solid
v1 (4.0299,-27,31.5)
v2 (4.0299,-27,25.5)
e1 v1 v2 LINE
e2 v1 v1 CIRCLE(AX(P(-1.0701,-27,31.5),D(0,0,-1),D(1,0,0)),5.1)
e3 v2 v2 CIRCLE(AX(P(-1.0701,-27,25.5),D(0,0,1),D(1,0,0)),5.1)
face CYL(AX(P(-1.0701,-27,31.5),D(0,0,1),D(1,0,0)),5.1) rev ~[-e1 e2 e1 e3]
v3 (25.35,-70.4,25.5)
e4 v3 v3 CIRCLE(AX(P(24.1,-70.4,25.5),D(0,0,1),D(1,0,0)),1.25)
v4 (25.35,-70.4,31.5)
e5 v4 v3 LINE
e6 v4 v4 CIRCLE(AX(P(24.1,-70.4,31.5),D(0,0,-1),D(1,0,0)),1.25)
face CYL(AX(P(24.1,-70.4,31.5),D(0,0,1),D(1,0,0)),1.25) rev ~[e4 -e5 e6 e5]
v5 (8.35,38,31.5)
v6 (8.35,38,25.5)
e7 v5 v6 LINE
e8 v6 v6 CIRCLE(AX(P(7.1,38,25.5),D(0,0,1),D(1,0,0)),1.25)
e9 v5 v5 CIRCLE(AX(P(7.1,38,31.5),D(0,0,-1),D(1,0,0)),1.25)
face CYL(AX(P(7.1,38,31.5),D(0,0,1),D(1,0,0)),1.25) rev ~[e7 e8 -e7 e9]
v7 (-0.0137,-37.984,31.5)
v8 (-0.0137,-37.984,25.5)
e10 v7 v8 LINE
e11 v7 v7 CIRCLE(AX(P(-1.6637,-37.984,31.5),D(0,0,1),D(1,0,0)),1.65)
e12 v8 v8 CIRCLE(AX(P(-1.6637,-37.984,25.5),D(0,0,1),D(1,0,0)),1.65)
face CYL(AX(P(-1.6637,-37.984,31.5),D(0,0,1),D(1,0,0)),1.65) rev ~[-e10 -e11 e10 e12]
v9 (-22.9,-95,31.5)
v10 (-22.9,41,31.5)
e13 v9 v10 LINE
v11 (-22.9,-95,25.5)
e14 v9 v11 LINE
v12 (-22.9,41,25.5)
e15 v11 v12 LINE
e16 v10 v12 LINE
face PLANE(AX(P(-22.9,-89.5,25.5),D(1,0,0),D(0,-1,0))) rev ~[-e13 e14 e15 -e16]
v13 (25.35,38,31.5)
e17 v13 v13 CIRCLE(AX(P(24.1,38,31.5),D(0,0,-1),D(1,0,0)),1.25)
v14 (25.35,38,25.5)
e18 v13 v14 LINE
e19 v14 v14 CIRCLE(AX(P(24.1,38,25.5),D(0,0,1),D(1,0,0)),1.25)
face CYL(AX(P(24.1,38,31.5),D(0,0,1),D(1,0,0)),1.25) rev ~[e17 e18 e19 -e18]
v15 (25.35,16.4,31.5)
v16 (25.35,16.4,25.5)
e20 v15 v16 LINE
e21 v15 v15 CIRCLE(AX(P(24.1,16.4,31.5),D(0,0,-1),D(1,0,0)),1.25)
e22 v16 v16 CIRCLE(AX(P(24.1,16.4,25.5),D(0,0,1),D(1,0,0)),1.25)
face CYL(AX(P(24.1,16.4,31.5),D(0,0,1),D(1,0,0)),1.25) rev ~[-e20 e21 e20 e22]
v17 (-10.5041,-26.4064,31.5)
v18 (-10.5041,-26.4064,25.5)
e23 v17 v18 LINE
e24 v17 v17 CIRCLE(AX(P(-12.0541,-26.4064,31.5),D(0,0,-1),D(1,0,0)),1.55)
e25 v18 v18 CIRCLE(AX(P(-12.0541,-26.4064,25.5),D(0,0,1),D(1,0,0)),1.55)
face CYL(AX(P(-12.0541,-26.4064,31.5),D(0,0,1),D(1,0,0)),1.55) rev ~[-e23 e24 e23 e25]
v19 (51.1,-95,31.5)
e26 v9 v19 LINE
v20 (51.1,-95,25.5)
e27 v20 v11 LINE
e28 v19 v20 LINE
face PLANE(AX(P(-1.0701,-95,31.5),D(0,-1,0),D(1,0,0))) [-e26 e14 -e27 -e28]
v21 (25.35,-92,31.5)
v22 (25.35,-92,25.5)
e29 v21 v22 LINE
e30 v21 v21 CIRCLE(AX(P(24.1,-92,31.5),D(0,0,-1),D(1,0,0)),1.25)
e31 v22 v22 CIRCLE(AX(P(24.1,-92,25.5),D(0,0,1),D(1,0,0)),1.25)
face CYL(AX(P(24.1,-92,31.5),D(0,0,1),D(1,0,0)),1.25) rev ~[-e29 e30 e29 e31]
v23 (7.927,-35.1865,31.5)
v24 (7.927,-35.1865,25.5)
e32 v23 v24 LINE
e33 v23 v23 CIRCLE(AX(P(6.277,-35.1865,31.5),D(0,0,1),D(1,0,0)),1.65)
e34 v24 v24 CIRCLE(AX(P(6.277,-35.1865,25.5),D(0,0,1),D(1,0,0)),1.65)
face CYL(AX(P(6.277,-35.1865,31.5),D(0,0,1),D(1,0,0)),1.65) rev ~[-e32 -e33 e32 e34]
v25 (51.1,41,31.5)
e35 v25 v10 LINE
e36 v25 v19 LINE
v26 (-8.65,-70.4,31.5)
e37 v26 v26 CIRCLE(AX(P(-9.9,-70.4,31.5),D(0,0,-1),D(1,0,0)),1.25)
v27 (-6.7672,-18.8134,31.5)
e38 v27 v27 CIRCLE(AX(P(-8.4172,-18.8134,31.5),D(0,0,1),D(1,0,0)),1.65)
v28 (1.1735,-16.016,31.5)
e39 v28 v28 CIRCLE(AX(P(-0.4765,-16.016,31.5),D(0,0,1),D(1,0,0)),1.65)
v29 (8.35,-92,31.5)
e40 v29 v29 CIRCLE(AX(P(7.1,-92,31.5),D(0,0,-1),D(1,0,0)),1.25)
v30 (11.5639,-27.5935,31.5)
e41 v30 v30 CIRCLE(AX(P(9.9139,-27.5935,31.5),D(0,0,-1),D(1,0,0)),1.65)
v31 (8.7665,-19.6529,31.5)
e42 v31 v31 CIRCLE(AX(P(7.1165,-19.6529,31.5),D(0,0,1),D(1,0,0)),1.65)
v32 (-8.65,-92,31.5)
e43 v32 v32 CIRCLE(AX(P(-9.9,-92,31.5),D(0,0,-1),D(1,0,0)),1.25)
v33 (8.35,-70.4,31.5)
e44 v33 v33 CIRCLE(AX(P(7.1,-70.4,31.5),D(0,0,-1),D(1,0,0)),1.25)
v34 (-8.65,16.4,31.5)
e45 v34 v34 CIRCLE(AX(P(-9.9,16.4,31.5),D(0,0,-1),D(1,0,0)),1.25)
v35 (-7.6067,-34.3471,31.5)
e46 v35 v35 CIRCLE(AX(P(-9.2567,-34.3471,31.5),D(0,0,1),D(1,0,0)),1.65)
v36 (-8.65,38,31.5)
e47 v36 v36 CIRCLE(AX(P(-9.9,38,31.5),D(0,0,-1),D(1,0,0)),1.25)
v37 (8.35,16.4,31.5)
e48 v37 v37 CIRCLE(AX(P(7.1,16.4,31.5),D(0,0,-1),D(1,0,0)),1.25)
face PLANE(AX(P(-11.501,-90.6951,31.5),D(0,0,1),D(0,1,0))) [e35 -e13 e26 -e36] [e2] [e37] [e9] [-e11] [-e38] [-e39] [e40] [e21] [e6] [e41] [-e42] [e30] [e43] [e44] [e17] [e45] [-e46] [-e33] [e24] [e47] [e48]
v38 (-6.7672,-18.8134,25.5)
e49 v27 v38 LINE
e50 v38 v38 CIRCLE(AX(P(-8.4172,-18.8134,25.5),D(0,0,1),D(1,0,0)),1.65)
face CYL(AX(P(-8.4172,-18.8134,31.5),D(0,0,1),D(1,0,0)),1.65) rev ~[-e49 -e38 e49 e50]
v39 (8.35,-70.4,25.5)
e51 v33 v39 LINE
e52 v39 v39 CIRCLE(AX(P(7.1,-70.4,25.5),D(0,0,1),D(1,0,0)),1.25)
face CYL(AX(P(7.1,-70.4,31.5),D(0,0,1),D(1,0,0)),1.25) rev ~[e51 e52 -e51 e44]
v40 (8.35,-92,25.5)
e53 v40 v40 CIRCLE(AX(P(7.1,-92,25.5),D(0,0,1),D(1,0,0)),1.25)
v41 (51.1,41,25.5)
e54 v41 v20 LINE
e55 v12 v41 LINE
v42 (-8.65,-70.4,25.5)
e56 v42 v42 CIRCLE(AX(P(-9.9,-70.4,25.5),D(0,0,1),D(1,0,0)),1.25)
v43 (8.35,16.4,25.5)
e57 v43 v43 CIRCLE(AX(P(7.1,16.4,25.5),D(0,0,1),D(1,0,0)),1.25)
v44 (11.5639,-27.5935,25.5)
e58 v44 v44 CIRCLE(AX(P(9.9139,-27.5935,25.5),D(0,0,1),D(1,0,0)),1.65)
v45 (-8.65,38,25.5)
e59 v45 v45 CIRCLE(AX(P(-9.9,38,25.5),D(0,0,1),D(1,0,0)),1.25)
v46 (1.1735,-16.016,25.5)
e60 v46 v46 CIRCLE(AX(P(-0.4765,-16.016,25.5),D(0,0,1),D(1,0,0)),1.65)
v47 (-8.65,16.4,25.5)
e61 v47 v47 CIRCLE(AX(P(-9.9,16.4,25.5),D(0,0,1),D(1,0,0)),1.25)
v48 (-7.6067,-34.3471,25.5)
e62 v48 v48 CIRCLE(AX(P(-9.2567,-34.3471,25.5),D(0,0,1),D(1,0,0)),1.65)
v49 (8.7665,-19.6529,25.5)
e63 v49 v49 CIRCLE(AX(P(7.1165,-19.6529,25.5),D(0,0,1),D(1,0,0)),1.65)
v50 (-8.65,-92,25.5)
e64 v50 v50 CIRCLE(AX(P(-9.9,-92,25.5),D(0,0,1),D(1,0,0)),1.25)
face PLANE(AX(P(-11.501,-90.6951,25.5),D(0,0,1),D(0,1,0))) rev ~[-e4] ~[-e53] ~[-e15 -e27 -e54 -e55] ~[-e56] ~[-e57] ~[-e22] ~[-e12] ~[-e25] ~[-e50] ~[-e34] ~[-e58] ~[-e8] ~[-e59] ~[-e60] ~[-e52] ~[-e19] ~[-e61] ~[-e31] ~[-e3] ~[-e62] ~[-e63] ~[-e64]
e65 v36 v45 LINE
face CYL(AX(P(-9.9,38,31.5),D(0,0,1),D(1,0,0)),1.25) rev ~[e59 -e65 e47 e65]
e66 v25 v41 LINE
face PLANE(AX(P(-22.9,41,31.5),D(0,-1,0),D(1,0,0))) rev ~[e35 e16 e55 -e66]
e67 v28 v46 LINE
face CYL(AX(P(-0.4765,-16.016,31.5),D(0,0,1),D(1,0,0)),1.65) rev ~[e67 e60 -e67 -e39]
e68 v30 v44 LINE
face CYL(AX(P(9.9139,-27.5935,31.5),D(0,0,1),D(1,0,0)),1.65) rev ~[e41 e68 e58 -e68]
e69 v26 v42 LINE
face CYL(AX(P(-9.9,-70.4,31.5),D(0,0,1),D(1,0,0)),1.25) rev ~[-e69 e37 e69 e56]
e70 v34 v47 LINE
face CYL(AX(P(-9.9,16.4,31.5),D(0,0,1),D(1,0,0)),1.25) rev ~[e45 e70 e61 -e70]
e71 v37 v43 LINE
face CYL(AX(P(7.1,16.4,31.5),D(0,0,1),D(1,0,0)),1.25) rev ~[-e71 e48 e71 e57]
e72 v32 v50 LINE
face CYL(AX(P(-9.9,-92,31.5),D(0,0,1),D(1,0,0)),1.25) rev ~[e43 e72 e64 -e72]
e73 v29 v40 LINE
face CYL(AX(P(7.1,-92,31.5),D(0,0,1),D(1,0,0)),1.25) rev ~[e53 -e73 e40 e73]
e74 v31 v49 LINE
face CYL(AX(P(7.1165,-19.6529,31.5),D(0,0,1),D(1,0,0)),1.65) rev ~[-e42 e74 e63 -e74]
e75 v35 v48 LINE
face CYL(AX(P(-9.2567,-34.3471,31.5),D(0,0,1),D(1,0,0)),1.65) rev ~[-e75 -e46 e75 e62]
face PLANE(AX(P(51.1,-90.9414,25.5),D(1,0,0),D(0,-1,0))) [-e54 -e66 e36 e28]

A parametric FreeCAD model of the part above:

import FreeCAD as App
import Part
import Sketcher

V = App.Vector

doc = App.newDocument("Part")
params = doc.addObject("Spreadsheet::Sheet", "Params")
for row, (alias, value) in enumerate([
    ("sketch1_width", "74 mm"),
    ("sketch1_height", "176 mm"),
    ("pad1_length", "6 mm"),
    ("sketch2_diameter", "3.1 mm"),
    ("sketch2_diameter2", "3.3 mm"),
    ("sketch2_diameter3", "10.2 mm"),
    ("pocket1_length", "10 mm"),
    ("sketch3_height", "20 mm"),
    ("sketch3_width", "74 mm"),
    ("pocket2_length", "6 mm"),
    ("sketch4_diameter", "2.5 mm"),
    ("pocket3_length", "20 mm"),
], start=1):
    params.set(f"A{row}", alias)
    params.set(f"B{row}", "=" + value)
    params.setAlias(f"B{row}", alias)

body = doc.addObject("PartDesign::Body", "Body")

# Sketch on XY plane
sketch1 = body.newObject("Sketcher::SketchObject", "Sketch")
sketch1.AttachmentSupport = (doc.getObject("XY_Plane"), [""])
sketch1.MapMode = "FlatFace"
sketch1.AttachmentOffset = App.Placement(V(0, 0, 25.5), App.Rotation())
sketch1.addGeometry([
    Part.LineSegment(V(-22.9, -115, 0), V(51.1, -115, 0)),
    Part.LineSegment(V(51.1, -115, 0), V(51.1, 61, 0)),
    Part.LineSegment(V(51.1, 61, 0), V(-22.9, 61, 0)),
    Part.LineSegment(V(-22.9, 61, 0), V(-22.9, -115, 0)),
], False)
sketch1.addConstraint([
    Sketcher.Constraint("Coincident", 0, 2, 1, 1),
    Sketcher.Constraint("Coincident", 1, 2, 2, 1),
    Sketcher.Constraint("Coincident", 2, 2, 3, 1),
    Sketcher.Constraint("Coincident", 3, 2, 0, 1),
    Sketcher.Constraint("Horizontal", 0),
    Sketcher.Constraint("Vertical", 1),
    Sketcher.Constraint("Horizontal", 2),
    Sketcher.Constraint("Vertical", 3),
    Sketcher.Constraint("DistanceX", 0, 1, 0, 2, 74.0),
    Sketcher.Constraint("DistanceY", 1, 1, 1, 2, 176.0),
    Sketcher.Constraint("DistanceY", 0, 2, -1, 1, 115.0),
    Sketcher.Constraint("DistanceX", -1, 1, 0, 2, 51.1),
])
sketch1.setExpression("Constraints[8]", "Params.sketch1_width")
sketch1.setExpression("Constraints[9]", "Params.sketch1_height")
pad1 = body.newObject("PartDesign::Pad", "Pad")
pad1.Profile = sketch1
pad1.setExpression("Length", "Params.pad1_length")

# Sketch on XY plane
sketch2 = body.newObject("Sketcher::SketchObject", "Sketch001")
sketch2.AttachmentSupport = (doc.getObject("XY_Plane"), [""])
sketch2.MapMode = "FlatFace"
sketch2.AttachmentOffset = App.Placement(V(0, 0, 31.5), App.Rotation())
sketch2.addGeometry([
    Part.Circle(V(-12.0541, -26.4064, 0), V(0, 0, 1), 1.55),  # 0
    Part.Circle(V(9.9139, -27.5935, 0), V(0, 0, 1), 1.65),  # 1
    Part.Circle(V(-1.0701, -27, 0), V(0, 0, 1), 5.1),  # 2
    Part.Circle(V(-0.4765, -16.016, 0), V(0, 0, 1), 1.65),  # 3
    Part.Circle(V(-1.6637, -37.984, 0), V(0, 0, 1), 1.65),  # 4
    Part.Circle(V(6.277, -35.1865, 0), V(0, 0, 1), 1.65),  # 5
    Part.Circle(V(7.1165, -19.6529, 0), V(0, 0, 1), 1.65),  # 6
    Part.Circle(V(-8.4172, -18.8134, 0), V(0, 0, 1), 1.65),  # 7
    Part.Circle(V(-9.2567, -34.3471, 0), V(0, 0, 1), 1.65),  # 8
], False)
sketch2.addConstraint([
    Sketcher.Constraint("Equal", 1, 3),
    Sketcher.Constraint("Equal", 3, 4),
    Sketcher.Constraint("Equal", 4, 5),
    Sketcher.Constraint("Equal", 5, 6),
    Sketcher.Constraint("Equal", 6, 7),
    Sketcher.Constraint("Equal", 7, 8),
    Sketcher.Constraint("Diameter", 0, 3.1),
    Sketcher.Constraint("Diameter", 1, 3.3),
    Sketcher.Constraint("Diameter", 2, 10.2),
    Sketcher.Constraint("DistanceY", 2, 3, -1, 1, 27.0),
    Sketcher.Constraint("DistanceX", 2, 3, -1, 1, 1.07),
    Sketcher.Constraint("DistanceY", 5, 3, 0, 3, 8.78),
    Sketcher.Constraint("DistanceY", 1, 3, 7, 3, 8.78),
    Sketcher.Constraint("DistanceX", 0, 3, -1, 1, 12.054),
    Sketcher.Constraint("DistanceX", -1, 1, 1, 3, 9.914),
    Sketcher.Constraint("DistanceY", 3, 3, -1, 1, 16.016),
    Sketcher.Constraint("DistanceY", 4, 3, -1, 1, 37.984),
    Sketcher.Constraint("DistanceX", -1, 1, 5, 3, 6.277),
    Sketcher.Constraint("DistanceY", 6, 3, -1, 1, 19.653),
    Sketcher.Constraint("DistanceY", 8, 3, -1, 1, 34.347),
    Sketcher.Constraint("DistanceY", 1, 3, 0, 3, 1.187),
    Sketcher.Constraint("DistanceX", 3, 3, 6, 3, 7.593),
    Sketcher.Constraint("DistanceX", 0, 3, 7, 3, 3.637),
    Sketcher.Constraint("DistanceX", 8, 3, 4, 3, 7.593),
    Sketcher.Constraint("DistanceY", 0, 3, -1, 1, 26.4064),
    Sketcher.Constraint("DistanceX", 3, 3, -1, 1, 0.4765),
    Sketcher.Constraint("DistanceX", 4, 3, -1, 1, 1.6637),
])
sketch2.setExpression("Constraints[6]", "Params.sketch2_diameter")
sketch2.setExpression("Constraints[7]", "Params.sketch2_diameter2")
sketch2.setExpression("Constraints[8]", "Params.sketch2_diameter3")
pocket1 = body.newObject("PartDesign::Pocket", "Pocket")
pocket1.Profile = sketch2
pocket1.setExpression("Length", "Params.pocket1_length")

# Sketch on XY plane
sketch3 = body.newObject("Sketcher::SketchObject", "Sketch002")
sketch3.AttachmentSupport = (doc.getObject("XY_Plane"), [""])
sketch3.MapMode = "FlatFace"
sketch3.AttachmentOffset = App.Placement(V(0, 0, 31.5), App.Rotation())
sketch3.addGeometry([
    Part.LineSegment(V(-22.9, 41, 0), V(51.1, 41, 0)),  # 0
    Part.LineSegment(V(51.1, 41, 0), V(51.1, 61, 0)),  # 1
    Part.LineSegment(V(51.1, 61, 0), V(-22.9, 61, 0)),  # 2
    Part.LineSegment(V(-22.9, 61, 0), V(-22.9, 41, 0)),  # 3
    Part.LineSegment(V(51.1, -95, 0), V(-22.9, -95, 0)),  # 4
    Part.LineSegment(V(-22.9, -95, 0), V(-22.9, -115, 0)),  # 5
    Part.LineSegment(V(-22.9, -115, 0), V(51.1, -115, 0)),  # 6
    Part.LineSegment(V(51.1, -115, 0), V(51.1, -95, 0)),  # 7
], False)
sketch3.addConstraint([
    Sketcher.Constraint("Coincident", 0, 2, 1, 1),
    Sketcher.Constraint("Coincident", 1, 2, 2, 1),
    Sketcher.Constraint("Coincident", 2, 2, 3, 1),
    Sketcher.Constraint("Coincident", 3, 2, 0, 1),
    Sketcher.Constraint("Coincident", 4, 2, 5, 1),
    Sketcher.Constraint("Coincident", 5, 2, 6, 1),
    Sketcher.Constraint("Coincident", 6, 2, 7, 1),
    Sketcher.Constraint("Coincident", 7, 2, 4, 1),
    Sketcher.Constraint("Horizontal", 0),
    Sketcher.Constraint("Vertical", 1),
    Sketcher.Constraint("Horizontal", 2),
    Sketcher.Constraint("Vertical", 3),
    Sketcher.Constraint("Horizontal", 4),
    Sketcher.Constraint("Vertical", 5),
    Sketcher.Constraint("Horizontal", 6),
    Sketcher.Constraint("Vertical", 7),
    Sketcher.Constraint("Vertical", 3, 2, 4, 2),
    Sketcher.Constraint("Vertical", 1, 2, 6, 2),
    Sketcher.Constraint("Equal", 3, 5),
    Sketcher.Constraint("DistanceY", 1, 1, 1, 2, 20.0),
    Sketcher.Constraint("DistanceX", 0, 1, 0, 2, 74.0),
    Sketcher.Constraint("DistanceY", -1, 1, 0, 2, 41.0),
    Sketcher.Constraint("DistanceY", 4, 2, -1, 1, 95.0),
    Sketcher.Constraint("DistanceX", -1, 1, 0, 2, 51.1),
])
sketch3.setExpression("Constraints[19]", "Params.sketch3_height")
sketch3.setExpression("Constraints[20]", "Params.sketch3_width")
pocket2 = body.newObject("PartDesign::Pocket", "Pocket001")
pocket2.Profile = sketch3
pocket2.setExpression("Length", "Params.pocket2_length")

# Sketch on XY plane
sketch4 = body.newObject("Sketcher::SketchObject", "Sketch003")
sketch4.AttachmentSupport = (doc.getObject("XY_Plane"), [""])
sketch4.MapMode = "FlatFace"
sketch4.AttachmentOffset = App.Placement(V(0, 0, 31.5), App.Rotation())
sketch4.addGeometry([
    Part.Circle(V(-9.9, -70.4, 0), V(0, 0, 1), 1.25),  # 0
    Part.Circle(V(7.1, -70.4, 0), V(0, 0, 1), 1.25),  # 1
    Part.Circle(V(24.1, -70.4, 0), V(0, 0, 1), 1.25),  # 2
    Part.Circle(V(24.1, -92, 0), V(0, 0, 1), 1.25),  # 3
    Part.Circle(V(7.1, -92, 0), V(0, 0, 1), 1.25),  # 4
    Part.Circle(V(-9.9, -92, 0), V(0, 0, 1), 1.25),  # 5
    Part.Circle(V(-9.9, 38, 0), V(0, 0, 1), 1.25),  # 6
    Part.Circle(V(7.1, 38, 0), V(0, 0, 1), 1.25),  # 7
    Part.Circle(V(24.1, 38, 0), V(0, 0, 1), 1.25),  # 8
    Part.Circle(V(24.1, 16.4, 0), V(0, 0, 1), 1.25),  # 9
    Part.Circle(V(7.1, 16.4, 0), V(0, 0, 1), 1.25),  # 10
    Part.Circle(V(-9.9, 16.4, 0), V(0, 0, 1), 1.25),  # 11
], False)
sketch4.addConstraint([
    Sketcher.Constraint("Equal", 0, 1),
    Sketcher.Constraint("Equal", 1, 2),
    Sketcher.Constraint("Equal", 2, 3),
    Sketcher.Constraint("Equal", 3, 4),
    Sketcher.Constraint("Equal", 4, 5),
    Sketcher.Constraint("Equal", 5, 6),
    Sketcher.Constraint("Equal", 6, 7),
    Sketcher.Constraint("Equal", 7, 8),
    Sketcher.Constraint("Equal", 8, 9),
    Sketcher.Constraint("Equal", 9, 10),
    Sketcher.Constraint("Equal", 10, 11),
    Sketcher.Constraint("Horizontal", 0, 3, 1, 3),
    Sketcher.Constraint("Horizontal", 1, 3, 2, 3),
    Sketcher.Constraint("Horizontal", 3, 3, 4, 3),
    Sketcher.Constraint("Horizontal", 4, 3, 5, 3),
    Sketcher.Constraint("Horizontal", 6, 3, 7, 3),
    Sketcher.Constraint("Horizontal", 7, 3, 8, 3),
    Sketcher.Constraint("Horizontal", 9, 3, 10, 3),
    Sketcher.Constraint("Horizontal", 10, 3, 11, 3),
    Sketcher.Constraint("Vertical", 2, 3, 3, 3),
    Sketcher.Constraint("Vertical", 1, 3, 4, 3),
    Sketcher.Constraint("Vertical", 0, 3, 5, 3),
    Sketcher.Constraint("Vertical", 5, 3, 6, 3),
    Sketcher.Constraint("Vertical", 4, 3, 7, 3),
    Sketcher.Constraint("Vertical", 3, 3, 8, 3),
    Sketcher.Constraint("Vertical", 8, 3, 9, 3),
    Sketcher.Constraint("Vertical", 7, 3, 10, 3),
    Sketcher.Constraint("Vertical", 6, 3, 11, 3),
    Sketcher.Constraint("Diameter", 0, 2.5),
    Sketcher.Constraint("DistanceX", 0, 3, 1, 3, 17.0),
    Sketcher.Constraint("DistanceX", 1, 3, 2, 3, 17.0),
    Sketcher.Constraint("DistanceY", 3, 3, -1, 1, 92.0),
    Sketcher.Constraint("DistanceY", -1, 1, 6, 3, 38.0),
    Sketcher.Constraint("DistanceX", 0, 3, -1, 1, 9.9),
    Sketcher.Constraint("DistanceY", 0, 3, -1, 1, 70.4),
    Sketcher.Constraint("DistanceY", -1, 1, 9, 3, 16.4),
])
sketch4.setExpression("Constraints[28]", "Params.sketch4_diameter")
pocket3 = body.newObject("PartDesign::Pocket", "Pocket002")
pocket3.Profile = sketch4
pocket3.setExpression("Length", "Params.pocket3_length")

doc.recompute()
